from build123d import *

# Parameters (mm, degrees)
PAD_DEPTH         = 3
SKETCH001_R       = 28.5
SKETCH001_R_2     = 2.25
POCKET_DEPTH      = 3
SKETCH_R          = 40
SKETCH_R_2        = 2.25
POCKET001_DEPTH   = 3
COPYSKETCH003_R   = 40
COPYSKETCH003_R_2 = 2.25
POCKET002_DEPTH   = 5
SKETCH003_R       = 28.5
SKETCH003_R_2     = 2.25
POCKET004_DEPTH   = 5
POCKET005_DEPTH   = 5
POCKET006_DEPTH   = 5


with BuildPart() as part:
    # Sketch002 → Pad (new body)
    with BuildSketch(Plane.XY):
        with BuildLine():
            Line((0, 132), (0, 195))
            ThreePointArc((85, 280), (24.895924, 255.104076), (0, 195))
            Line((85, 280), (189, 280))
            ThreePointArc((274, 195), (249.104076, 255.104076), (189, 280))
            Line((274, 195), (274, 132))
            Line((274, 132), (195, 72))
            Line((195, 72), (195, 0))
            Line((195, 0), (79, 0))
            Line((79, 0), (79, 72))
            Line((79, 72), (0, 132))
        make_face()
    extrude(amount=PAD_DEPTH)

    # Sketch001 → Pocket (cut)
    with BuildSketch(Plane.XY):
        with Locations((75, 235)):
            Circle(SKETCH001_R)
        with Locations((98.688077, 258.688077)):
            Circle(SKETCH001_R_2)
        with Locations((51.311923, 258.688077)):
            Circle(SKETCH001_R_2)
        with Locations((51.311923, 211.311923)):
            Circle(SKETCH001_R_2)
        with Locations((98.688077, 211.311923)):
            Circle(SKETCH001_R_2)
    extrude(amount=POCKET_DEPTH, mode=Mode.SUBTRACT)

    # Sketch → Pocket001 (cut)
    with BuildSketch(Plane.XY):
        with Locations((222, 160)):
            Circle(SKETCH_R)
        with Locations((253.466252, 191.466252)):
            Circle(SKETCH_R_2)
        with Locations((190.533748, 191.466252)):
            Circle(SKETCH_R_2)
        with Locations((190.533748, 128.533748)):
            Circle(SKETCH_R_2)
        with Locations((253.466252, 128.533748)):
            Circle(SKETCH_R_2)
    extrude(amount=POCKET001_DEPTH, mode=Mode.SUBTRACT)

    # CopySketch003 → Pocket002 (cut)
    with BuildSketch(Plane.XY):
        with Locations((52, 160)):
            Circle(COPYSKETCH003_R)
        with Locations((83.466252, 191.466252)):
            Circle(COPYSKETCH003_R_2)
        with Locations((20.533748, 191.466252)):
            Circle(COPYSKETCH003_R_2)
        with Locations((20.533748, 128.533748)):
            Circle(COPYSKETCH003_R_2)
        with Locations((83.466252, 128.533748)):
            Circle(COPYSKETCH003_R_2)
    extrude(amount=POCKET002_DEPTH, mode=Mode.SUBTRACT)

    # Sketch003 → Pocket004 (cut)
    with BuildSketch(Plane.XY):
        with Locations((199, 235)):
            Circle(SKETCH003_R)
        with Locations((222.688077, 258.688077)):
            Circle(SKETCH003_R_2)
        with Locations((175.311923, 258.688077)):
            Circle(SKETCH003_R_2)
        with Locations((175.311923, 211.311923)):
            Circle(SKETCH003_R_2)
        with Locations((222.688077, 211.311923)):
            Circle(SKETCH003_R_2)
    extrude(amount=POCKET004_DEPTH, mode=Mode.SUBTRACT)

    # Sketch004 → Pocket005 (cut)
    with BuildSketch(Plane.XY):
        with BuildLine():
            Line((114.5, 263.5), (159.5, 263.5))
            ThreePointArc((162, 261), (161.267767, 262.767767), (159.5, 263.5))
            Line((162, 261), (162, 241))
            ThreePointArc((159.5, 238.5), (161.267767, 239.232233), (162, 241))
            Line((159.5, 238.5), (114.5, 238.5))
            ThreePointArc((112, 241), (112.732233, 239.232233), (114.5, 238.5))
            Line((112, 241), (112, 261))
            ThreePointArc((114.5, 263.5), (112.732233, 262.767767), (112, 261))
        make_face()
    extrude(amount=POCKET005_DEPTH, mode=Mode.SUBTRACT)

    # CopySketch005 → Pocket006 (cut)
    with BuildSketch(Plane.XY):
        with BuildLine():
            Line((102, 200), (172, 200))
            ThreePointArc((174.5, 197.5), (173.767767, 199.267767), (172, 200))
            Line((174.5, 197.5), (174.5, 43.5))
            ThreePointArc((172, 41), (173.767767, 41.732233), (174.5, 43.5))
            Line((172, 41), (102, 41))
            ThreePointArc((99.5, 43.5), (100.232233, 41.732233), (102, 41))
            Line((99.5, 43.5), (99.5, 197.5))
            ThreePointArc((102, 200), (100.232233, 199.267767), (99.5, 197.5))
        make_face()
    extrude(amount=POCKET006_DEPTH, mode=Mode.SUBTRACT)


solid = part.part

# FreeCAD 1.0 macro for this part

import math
import FreeCAD as App
import Part
import Sketcher
Q = App.Units.Quantity

doc = App.newDocument("Part")
body = doc.addObject("PartDesign::Body", "Body")

sketch1 = body.newObject("Sketcher::SketchObject", "Sketch")
sketch1.AttachmentSupport = (doc.getObject("XY_Plane"), [""])
sketch1.MapMode = "FlatFace"
sketch1.addGeometry([
    Part.LineSegment(App.Vector(0, 195, 0), App.Vector(0, 132, 0)),
    Part.LineSegment(App.Vector(0, 132, 0), App.Vector(79, 72, 0)),
    Part.LineSegment(App.Vector(79, 72, 0), App.Vector(79, 0, 0)),
    Part.LineSegment(App.Vector(79, 0, 0), App.Vector(195, 0, 0)),
    Part.LineSegment(App.Vector(195, 0, 0), App.Vector(195, 72, 0)),
    Part.LineSegment(App.Vector(195, 72, 0), App.Vector(274, 132, 0)),
    Part.LineSegment(App.Vector(274, 132, 0), App.Vector(274, 195, 0)),
    Part.ArcOfCircle(Part.Circle(App.Vector(188.999999, 194.999999, 0), App.Vector(0, 0, 1), 85.000001), math.radians(0.000001), math.radians(89.999999)),
    Part.LineSegment(App.Vector(189, 280, 0), App.Vector(85, 280, 0)),
    Part.ArcOfCircle(Part.Circle(App.Vector(85.000001, 194.999999, 0), App.Vector(0, 0, 1), 85.000001), math.radians(90.000001), math.radians(179.999999)),
], False)
sketch1.addConstraint([
    Sketcher.Constraint("Coincident", 0, 2, 1, 1),
    Sketcher.Constraint("Coincident", 1, 2, 2, 1),
    Sketcher.Constraint("Coincident", 2, 2, 3, 1),
    Sketcher.Constraint("Coincident", 3, 2, 4, 1),
    Sketcher.Constraint("Coincident", 4, 2, 5, 1),
    Sketcher.Constraint("Coincident", 5, 2, 6, 1),
    Sketcher.Constraint("Tangent", 6, 2, 7, 1),
    Sketcher.Constraint("Tangent", 7, 2, 8, 1),
    Sketcher.Constraint("Tangent", 8, 2, 9, 1),
    Sketcher.Constraint("Tangent", 9, 2, 0, 1),
    Sketcher.Constraint("Vertical", 0),
    Sketcher.Constraint("Vertical", 2),
    Sketcher.Constraint("Horizontal", 3),
    Sketcher.Constraint("Vertical", 4),
    Sketcher.Constraint("Vertical", 6),
    Sketcher.Constraint("Horizontal", 8),
    Sketcher.Constraint("Equal", 7, 9),
    Sketcher.Constraint("PointOnObject", 0, 2, -2),
    Sketcher.Constraint("PointOnObject", 2, 2, -1),
    Sketcher.Constraint("Horizontal", 1, 2, 4, 2),
    Sketcher.Constraint("Horizontal", 0, 2, 5, 2),
    Sketcher.Constraint("Equal", 1, 5),
    Sketcher.Constraint("Radius", 7, Q("85.000001 mm")),
    Sketcher.Constraint("DistanceX", 3, 1, 3, 2, Q("116 mm")),
    Sketcher.Constraint("DistanceX", 8, 2, 8, 1, Q("104 mm")),
    Sketcher.Constraint("DistanceY", 0, 2, 0, 1, Q("63 mm")),
    Sketcher.Constraint("DistanceY", 2, 2, 2, 1, Q("72 mm")),
    Sketcher.Constraint("DistanceY", -1, 1, 7, 3, Q("194.999999 mm")),
])
pad1 = body.newObject("PartDesign::Pad", "Pad")
pad1.Profile = sketch1
pad1.Length = 3

sketch2 = body.newObject("Sketcher::SketchObject", "Sketch001")
sketch2.AttachmentSupport = (doc.getObject("XY_Plane"), [""])
sketch2.MapMode = "FlatFace"
sketch2.addGeometry([
    Part.Circle(App.Vector(75, 235, 0), App.Vector(0, 0, 1), 28.5),
    Part.Circle(App.Vector(98.688077, 258.688077, 0), App.Vector(0, 0, 1), 2.25),
    Part.Circle(App.Vector(51.311923, 258.688077, 0), App.Vector(0, 0, 1), 2.25),
    Part.Circle(App.Vector(51.311923, 211.311923, 0), App.Vector(0, 0, 1), 2.25),
    Part.Circle(App.Vector(98.688077, 211.311923, 0), App.Vector(0, 0, 1), 2.25),
], False)
sketch2.addConstraint([
    Sketcher.Constraint("Equal", 1, 2),
    Sketcher.Constraint("Equal", 2, 3),
    Sketcher.Constraint("Equal", 3, 4),
    Sketcher.Constraint("Horizontal", 1, 3, 2, 3),
    Sketcher.Constraint("Horizontal", 3, 3, 4, 3),
    Sketcher.Constraint("Vertical", 2, 3, 3, 3),
    Sketcher.Constraint("Vertical", 1, 3, 4, 3),
    Sketcher.Constraint("Diameter", 0, Q("57 mm")),
    Sketcher.Constraint("Diameter", 1, Q("4.5 mm")),
    Sketcher.Constraint("DistanceX", -1, 1, 0, 3, Q("75 mm")),
    Sketcher.Constraint("DistanceY", -1, 1, 0, 3, Q("235 mm")),
    Sketcher.Constraint("DistanceX", -1, 1, 1, 3, Q("98.688077 mm")),
    Sketcher.Constraint("DistanceY", -1, 1, 1, 3, Q("258.688077 mm")),
    Sketcher.Constraint("DistanceX", -1, 1, 2, 3, Q("51.311923 mm")),
    Sketcher.Constraint("DistanceY", -1, 1, 3, 3, Q("211.311923 mm")),
])
pocket1 = body.newObject("PartDesign::Pocket", "Pocket")
pocket1.Profile = sketch2
pocket1.Length = 3
pocket1.Reversed = True

sketch3 = body.newObject("Sketcher::SketchObject", "Sketch002")
sketch3.AttachmentSupport = (doc.getObject("XY_Plane"), [""])
sketch3.MapMode = "FlatFace"
sketch3.addGeometry([
    Part.Circle(App.Vector(222, 160, 0), App.Vector(0, 0, 1), 40),
    Part.Circle(App.Vector(253.466252, 191.466252, 0), App.Vector(0, 0, 1), 2.25),
    Part.Circle(App.Vector(190.533748, 191.466252, 0), App.Vector(0, 0, 1), 2.25),
    Part.Circle(App.Vector(190.533748, 128.533748, 0), App.Vector(0, 0, 1), 2.25),
    Part.Circle(App.Vector(253.466252, 128.533748, 0), App.Vector(0, 0, 1), 2.25),
], False)
sketch3.addConstraint([
    Sketcher.Constraint("Equal", 1, 2),
    Sketcher.Constraint("Equal", 2, 3),
    Sketcher.Constraint("Equal", 3, 4),
    Sketcher.Constraint("Horizontal", 1, 3, 2, 3),
    Sketcher.Constraint("Horizontal", 3, 3, 4, 3),
    Sketcher.Constraint("Vertical", 2, 3, 3, 3),
    Sketcher.Constraint("Vertical", 1, 3, 4, 3),
    Sketcher.Constraint("Diameter", 0, Q("80 mm")),
    Sketcher.Constraint("Diameter", 1, Q("4.5 mm")),
    Sketcher.Constraint("DistanceX", -1, 1, 0, 3, Q("222 mm")),
    Sketcher.Constraint("DistanceY", -1, 1, 0, 3, Q("160 mm")),
    Sketcher.Constraint("DistanceX", -1, 1, 1, 3, Q("253.466252 mm")),
    Sketcher.Constraint("DistanceY", -1, 1, 1, 3, Q("191.466252 mm")),
    Sketcher.Constraint("DistanceX", -1, 1, 2, 3, Q("190.533748 mm")),
    Sketcher.Constraint("DistanceY", -1, 1, 3, 3, Q("128.533748 mm")),
])
pocket2 = body.newObject("PartDesign::Pocket", "Pocket001")
pocket2.Profile = sketch3
pocket2.Length = 3
pocket2.Reversed = True

sketch4 = body.newObject("Sketcher::SketchObject", "Sketch003")
sketch4.AttachmentSupport = (doc.getObject("XY_Plane"), [""])
sketch4.MapMode = "FlatFace"
sketch4.addGeometry([
    Part.Circle(App.Vector(52, 160, 0), App.Vector(0, 0, 1), 40),
    Part.Circle(App.Vector(83.466252, 191.466252, 0), App.Vector(0, 0, 1), 2.25),
    Part.Circle(App.Vector(20.533748, 191.466252, 0), App.Vector(0, 0, 1), 2.25),
    Part.Circle(App.Vector(20.533748, 128.533748, 0), App.Vector(0, 0, 1), 2.25),
    Part.Circle(App.Vector(83.466252, 128.533748, 0), App.Vector(0, 0, 1), 2.25),
], False)
sketch4.addConstraint([
    Sketcher.Constraint("Equal", 1, 2),
    Sketcher.Constraint("Equal", 2, 3),
    Sketcher.Constraint("Equal", 3, 4),
    Sketcher.Constraint("Horizontal", 1, 3, 2, 3),
    Sketcher.Constraint("Horizontal", 3, 3, 4, 3),
    Sketcher.Constraint("Vertical", 2, 3, 3, 3),
    Sketcher.Constraint("Vertical", 1, 3, 4, 3),
    Sketcher.Constraint("Diameter", 0, Q("80 mm")),
    Sketcher.Constraint("Diameter", 1, Q("4.5 mm")),
    Sketcher.Constraint("DistanceX", -1, 1, 0, 3, Q("52 mm")),
    Sketcher.Constraint("DistanceY", -1, 1, 0, 3, Q("160 mm")),
    Sketcher.Constraint("DistanceX", -1, 1, 1, 3, Q("83.466252 mm")),
    Sketcher.Constraint("DistanceY", -1, 1, 1, 3, Q("191.466252 mm")),
    Sketcher.Constraint("DistanceY", -1, 1, 3, 3, Q("128.533748 mm")),
    Sketcher.Constraint("DistanceX", -1, 1, 2, 3, Q("20.533748 mm")),
])
pocket3 = body.newObject("PartDesign::Pocket", "Pocket002")
pocket3.Profile = sketch4
pocket3.Length = 5
pocket3.Reversed = True

sketch5 = body.newObject("Sketcher::SketchObject", "Sketch004")
sketch5.AttachmentSupport = (doc.getObject("XY_Plane"), [""])
sketch5.MapMode = "FlatFace"
sketch5.addGeometry([
    Part.Circle(App.Vector(199, 235, 0), App.Vector(0, 0, 1), 28.5),
    Part.Circle(App.Vector(222.688077, 258.688077, 0), App.Vector(0, 0, 1), 2.25),
    Part.Circle(App.Vector(175.311923, 258.688077, 0), App.Vector(0, 0, 1), 2.25),
    Part.Circle(App.Vector(175.311923, 211.311923, 0), App.Vector(0, 0, 1), 2.25),
    Part.Circle(App.Vector(222.688077, 211.311923, 0), App.Vector(0, 0, 1), 2.25),
], False)
sketch5.addConstraint([
    Sketcher.Constraint("Equal", 1, 2),
    Sketcher.Constraint("Equal", 2, 3),
    Sketcher.Constraint("Equal", 3, 4),
    Sketcher.Constraint("Horizontal", 1, 3, 2, 3),
    Sketcher.Constraint("Horizontal", 3, 3, 4, 3),
    Sketcher.Constraint("Vertical", 2, 3, 3, 3),
    Sketcher.Constraint("Vertical", 1, 3, 4, 3),
    Sketcher.Constraint("Diameter", 0, Q("57 mm")),
    Sketcher.Constraint("Diameter", 1, Q("4.5 mm")),
    Sketcher.Constraint("DistanceX", -1, 1, 0, 3, Q("199 mm")),
    Sketcher.Constraint("DistanceY", -1, 1, 0, 3, Q("235 mm")),
    Sketcher.Constraint("DistanceX", -1, 1, 1, 3, Q("222.688077 mm")),
    Sketcher.Constraint("DistanceY", -1, 1, 1, 3, Q("258.688077 mm")),
    Sketcher.Constraint("DistanceX", -1, 1, 2, 3, Q("175.311923 mm")),
    Sketcher.Constraint("DistanceY", -1, 1, 3, 3, Q("211.311923 mm")),
])
pocket4 = body.newObject("PartDesign::Pocket", "Pocket003")
pocket4.Profile = sketch5
pocket4.Length = 5
pocket4.Reversed = True

sketch6 = body.newObject("Sketcher::SketchObject", "Sketch005")
sketch6.AttachmentSupport = (doc.getObject("XY_Plane"), [""])
sketch6.MapMode = "FlatFace"
sketch6.addGeometry([
    Part.LineSegment(App.Vector(159.5, 263.5, 0), App.Vector(114.5, 263.5, 0)),
    Part.ArcOfCircle(Part.Circle(App.Vector(114.5, 261, 0), App.Vector(0, 0, 1), 2.5), math.radians(89.999996), math.radians(180.000004)),
    Part.LineSegment(App.Vector(112, 261, 0), App.Vector(112, 241, 0)),
    Part.ArcOfCircle(Part.Circle(App.Vector(114.5, 241, 0), App.Vector(0, 0, 1), 2.5), math.radians(179.999996), math.radians(270.000004)),
    Part.LineSegment(App.Vector(114.5, 238.5, 0), App.Vector(159.5, 238.5, 0)),
    Part.ArcOfCircle(Part.Circle(App.Vector(159.5, 241, 0), App.Vector(0, 0, 1), 2.5), math.radians(-90.000004), math.radians(0.000004)),
    Part.LineSegment(App.Vector(162, 241, 0), App.Vector(162, 261, 0)),
    Part.ArcOfCircle(Part.Circle(App.Vector(159.5, 261, 0), App.Vector(0, 0, 1), 2.5), math.radians(-0.000004), math.radians(90.000004)),
], False)
sketch6.addConstraint([
    Sketcher.Constraint("Tangent", 0, 2, 1, 1),
    Sketcher.Constraint("Tangent", 1, 2, 2, 1),
    Sketcher.Constraint("Tangent", 2, 2, 3, 1),
    Sketcher.Constraint("Tangent", 3, 2, 4, 1),
    Sketcher.Constraint("Tangent", 4, 2, 5, 1),
    Sketcher.Constraint("Tangent", 5, 2, 6, 1),
    Sketcher.Constraint("Tangent", 6, 2, 7, 1),
    Sketcher.Constraint("Tangent", 7, 2, 0, 1),
    Sketcher.Constraint("Horizontal", 0),
    Sketcher.Constraint("Vertical", 2),
    Sketcher.Constraint("Horizontal", 4),
    Sketcher.Constraint("Vertical", 6),
    Sketcher.Constraint("Equal", 1, 3),
    Sketcher.Constraint("Equal", 3, 5),
    Sketcher.Constraint("Equal", 5, 7),
    Sketcher.Constraint("Radius", 1, Q("2.5 mm")),
    Sketcher.Constraint("DistanceX", 0, 2, 0, 1, Q("45 mm")),
    Sketcher.Constraint("DistanceY", 2, 2, 2, 1, Q("20 mm")),
    Sketcher.Constraint("DistanceY", -1, 1, 1, 3, Q("261 mm")),
    Sketcher.Constraint("DistanceX", -1, 1, 1, 2, Q("112 mm")),
])
pocket5 = body.newObject("PartDesign::Pocket", "Pocket004")
pocket5.Profile = sketch6
pocket5.Length = 5
pocket5.Reversed = True

sketch7 = body.newObject("Sketcher::SketchObject", "Sketch006")
sketch7.AttachmentSupport = (doc.getObject("XY_Plane"), [""])
sketch7.MapMode = "FlatFace"
sketch7.addGeometry([
    Part.LineSegment(App.Vector(172, 200, 0), App.Vector(102, 200, 0)),
    Part.ArcOfCircle(Part.Circle(App.Vector(102, 197.5, 0), App.Vector(0, 0, 1), 2.5), math.radians(89.999996), math.radians(180.000004)),
    Part.LineSegment(App.Vector(99.5, 197.5, 0), App.Vector(99.5, 43.5, 0)),
    Part.ArcOfCircle(Part.Circle(App.Vector(102, 43.5, 0), App.Vector(0, 0, 1), 2.5), math.radians(179.999996), math.radians(270.000004)),
    Part.LineSegment(App.Vector(102, 41, 0), App.Vector(172, 41, 0)),
    Part.ArcOfCircle(Part.Circle(App.Vector(172, 43.5, 0), App.Vector(0, 0, 1), 2.5), math.radians(-90.000004), math.radians(0.000004)),
    Part.LineSegment(App.Vector(174.5, 43.5, 0), App.Vector(174.5, 197.5, 0)),
    Part.ArcOfCircle(Part.Circle(App.Vector(172, 197.5, 0), App.Vector(0, 0, 1), 2.5), math.radians(-0.000004), math.radians(90.000004)),
], False)
sketch7.addConstraint([
    Sketcher.Constraint("Tangent", 0, 2, 1, 1),
    Sketcher.Constraint("Tangent", 1, 2, 2, 1),
    Sketcher.Constraint("Tangent", 2, 2, 3, 1),
    Sketcher.Constraint("Tangent", 3, 2, 4, 1),
    Sketcher.Constraint("Tangent", 4, 2, 5, 1),
    Sketcher.Constraint("Tangent", 5, 2, 6, 1),
    Sketcher.Constraint("Tangent", 6, 2, 7, 1),
    Sketcher.Constraint("Tangent", 7, 2, 0, 1),
    Sketcher.Constraint("Horizontal", 0),
    Sketcher.Constraint("Vertical", 2),
    Sketcher.Constraint("Horizontal", 4),
    Sketcher.Constraint("Vertical", 6),
    Sketcher.Constraint("Equal", 1, 3),
    Sketcher.Constraint("Equal", 3, 5),
    Sketcher.Constraint("Equal", 5, 7),
    Sketcher.Constraint("Radius", 1, Q("2.5 mm")),
    Sketcher.Constraint("DistanceX", 0, 2, 0, 1, Q("70 mm")),
    Sketcher.Constraint("DistanceY", 2, 2, 2, 1, Q("154 mm")),
    Sketcher.Constraint("DistanceX", -1, 1, 1, 3, Q("102 mm")),
    Sketcher.Constraint("DistanceY", -1, 1, 0, 2, Q("200 mm")),
])
pocket6 = body.newObject("PartDesign::Pocket", "Pocket005")
pocket6.Profile = sketch7
pocket6.Length = 5
pocket6.Reversed = True

doc.recompute()
